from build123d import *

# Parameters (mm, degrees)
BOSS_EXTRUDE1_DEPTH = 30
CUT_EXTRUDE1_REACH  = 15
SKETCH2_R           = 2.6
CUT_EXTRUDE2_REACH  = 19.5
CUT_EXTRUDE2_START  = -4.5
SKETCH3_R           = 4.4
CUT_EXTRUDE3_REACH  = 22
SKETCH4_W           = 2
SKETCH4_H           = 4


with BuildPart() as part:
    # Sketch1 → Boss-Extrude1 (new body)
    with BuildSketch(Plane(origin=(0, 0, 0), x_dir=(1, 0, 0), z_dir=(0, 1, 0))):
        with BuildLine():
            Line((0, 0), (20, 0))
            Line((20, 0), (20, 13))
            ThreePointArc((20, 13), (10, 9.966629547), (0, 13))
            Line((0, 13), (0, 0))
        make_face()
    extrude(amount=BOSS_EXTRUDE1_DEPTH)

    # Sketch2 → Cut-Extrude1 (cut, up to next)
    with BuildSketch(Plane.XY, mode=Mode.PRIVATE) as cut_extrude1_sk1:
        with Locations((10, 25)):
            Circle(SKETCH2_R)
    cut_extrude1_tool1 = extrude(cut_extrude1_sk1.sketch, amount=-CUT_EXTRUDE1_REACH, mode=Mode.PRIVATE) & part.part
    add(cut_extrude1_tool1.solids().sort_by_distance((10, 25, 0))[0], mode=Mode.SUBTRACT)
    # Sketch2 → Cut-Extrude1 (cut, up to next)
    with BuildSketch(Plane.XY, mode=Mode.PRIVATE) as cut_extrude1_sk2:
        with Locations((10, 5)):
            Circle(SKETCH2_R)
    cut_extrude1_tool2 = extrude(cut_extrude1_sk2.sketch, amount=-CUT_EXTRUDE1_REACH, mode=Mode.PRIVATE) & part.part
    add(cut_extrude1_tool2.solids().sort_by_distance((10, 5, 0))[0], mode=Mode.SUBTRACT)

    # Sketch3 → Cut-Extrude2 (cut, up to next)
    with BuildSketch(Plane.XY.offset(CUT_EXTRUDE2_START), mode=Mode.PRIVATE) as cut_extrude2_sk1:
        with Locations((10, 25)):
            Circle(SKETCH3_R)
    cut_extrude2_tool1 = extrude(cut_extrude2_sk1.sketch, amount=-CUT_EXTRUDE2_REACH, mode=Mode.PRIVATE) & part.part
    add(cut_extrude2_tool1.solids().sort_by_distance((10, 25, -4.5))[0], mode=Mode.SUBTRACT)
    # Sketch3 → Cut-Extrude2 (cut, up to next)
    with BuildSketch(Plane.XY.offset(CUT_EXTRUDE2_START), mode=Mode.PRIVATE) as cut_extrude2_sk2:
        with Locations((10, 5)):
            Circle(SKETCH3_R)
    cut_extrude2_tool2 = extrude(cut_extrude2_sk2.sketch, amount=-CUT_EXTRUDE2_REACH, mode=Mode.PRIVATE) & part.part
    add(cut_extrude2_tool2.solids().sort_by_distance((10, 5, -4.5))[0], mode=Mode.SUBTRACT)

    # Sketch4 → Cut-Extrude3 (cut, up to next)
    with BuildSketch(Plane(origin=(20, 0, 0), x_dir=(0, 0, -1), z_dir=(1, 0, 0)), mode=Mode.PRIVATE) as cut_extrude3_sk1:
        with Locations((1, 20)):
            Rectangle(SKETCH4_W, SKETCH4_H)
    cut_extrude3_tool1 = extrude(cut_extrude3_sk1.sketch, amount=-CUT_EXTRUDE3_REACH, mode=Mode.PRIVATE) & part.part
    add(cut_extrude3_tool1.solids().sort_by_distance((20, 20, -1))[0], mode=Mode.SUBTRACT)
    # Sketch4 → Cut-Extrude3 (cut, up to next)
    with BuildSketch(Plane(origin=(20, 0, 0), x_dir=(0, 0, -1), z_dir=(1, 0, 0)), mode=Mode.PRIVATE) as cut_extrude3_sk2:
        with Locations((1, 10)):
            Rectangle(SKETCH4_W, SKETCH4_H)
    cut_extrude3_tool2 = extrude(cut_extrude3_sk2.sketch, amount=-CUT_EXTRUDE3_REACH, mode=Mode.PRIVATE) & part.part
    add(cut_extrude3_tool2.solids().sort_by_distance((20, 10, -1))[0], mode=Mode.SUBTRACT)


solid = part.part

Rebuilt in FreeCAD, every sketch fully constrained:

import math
import FreeCAD as App
import Part
import Sketcher
from FreeCAD import Vector


def add_polygon(sketch, points):
    """Adds a closed chain of lines whose ends are joined by coincident constraints."""
    first, n = sketch.GeometryCount, len(points)
    for a, b in zip(points, points[1:] + points[:1]):
        sketch.addGeometry(Part.LineSegment(App.Vector(*a, 0), App.Vector(*b, 0)), False)
    for i in range(n):
        sketch.addConstraint(Sketcher.Constraint("Coincident", first + i, 2, first + (i + 1) % n, 1))

doc = App.newDocument("Part")
body = doc.addObject("PartDesign::Body", "Body")

# Sketch on XZ plane
sketch1 = doc.addObject("Sketcher::SketchObject", "Sketch")
body.addObject(sketch1)
sketch1.AttachmentSupport = (doc.XZ_Plane, [""])
sketch1.MapMode = "FlatFace"
sketch1.addGeometry([
    Part.LineSegment(Vector(0, 0, 0), Vector(20, 0, 0)),
    Part.LineSegment(Vector(20, 0, 0), Vector(20, -13, 0)),
    Part.ArcOfCircle(Part.Circle(Vector(10, -28, 0), Vector(0, 0, 1), 18), math.radians(56), math.radians(124)),
    Part.LineSegment(Vector(0, -13, 0), Vector(0, 0, 0)),
], False)
sketch1.addConstraint([
    Sketcher.Constraint("Coincident", 0, 2, 1, 1),
    Sketcher.Constraint("Coincident", 1, 2, 2, 1),
    Sketcher.Constraint("Coincident", 2, 2, 3, 1),
    Sketcher.Constraint("Coincident", 3, 2, 0, 1),
    Sketcher.Constraint("Horizontal", 0),
    Sketcher.Constraint("Vertical", 1),
    Sketcher.Constraint("Vertical", 3),
    Sketcher.Constraint("Coincident", 3, 2, -1, 1),
    Sketcher.Constraint("Horizontal", 1, 2, 2, 2),
    Sketcher.Constraint("Radius", 2, 18.0),
    Sketcher.Constraint("DistanceX", 0, 1, 0, 2, 20.0),
    Sketcher.Constraint("DistanceY", 1, 2, 1, 1, 13.0),
])
pad1 = doc.addObject("PartDesign::Pad", "Pad")
body.addObject(pad1)
pad1.Profile = sketch1
pad1.Length = 30
pad1.Reversed = True

# Sketch on XY plane
sketch2 = doc.addObject("Sketcher::SketchObject", "Sketch001")
body.addObject(sketch2)
sketch2.AttachmentSupport = (doc.XY_Plane, [""])
sketch2.MapMode = "FlatFace"
sketch2.addGeometry(Part.Circle(Vector(10, 25, 0), Vector(0, 0, 1), 2.6), False)
sketch2.addConstraint([
    Sketcher.Constraint("Diameter", 0, 5.2),
    Sketcher.Constraint("DistanceX", -1, 1, 0, 3, 10.0),
    Sketcher.Constraint("DistanceY", -1, 1, 0, 3, 25.0),
])
pocket1 = doc.addObject("PartDesign::Pocket", "Pocket")
body.addObject(pocket1)
pocket1.Profile = sketch2
pocket1.Type = "UpToFirst"

# Sketch on XY plane
sketch3 = doc.addObject("Sketcher::SketchObject", "Sketch002")
body.addObject(sketch3)
sketch3.AttachmentSupport = (doc.XY_Plane, [""])
sketch3.MapMode = "FlatFace"
sketch3.addGeometry(Part.Circle(Vector(10, 5, 0), Vector(0, 0, 1), 2.6), False)
sketch3.addConstraint([
    Sketcher.Constraint("Diameter", 0, 5.2),
    Sketcher.Constraint("DistanceX", -1, 1, 0, 3, 10.0),
    Sketcher.Constraint("DistanceY", -1, 1, 0, 3, 5.0),
])
pocket2 = doc.addObject("PartDesign::Pocket", "Pocket001")
body.addObject(pocket2)
pocket2.Profile = sketch3
pocket2.Type = "UpToFirst"

# Sketch on XY plane
sketch4 = doc.addObject("Sketcher::SketchObject", "Sketch003")
body.addObject(sketch4)
sketch4.AttachmentSupport = (doc.XY_Plane, [""])
sketch4.MapMode = "FlatFace"
sketch4.AttachmentOffset = App.Placement(Vector(0, 0, -4.5), App.Rotation())
sketch4.addGeometry(Part.Circle(Vector(10, 25, 0), Vector(0, 0, 1), 4.4), False)
sketch4.addConstraint([
    Sketcher.Constraint("Diameter", 0, 8.8),
    Sketcher.Constraint("DistanceX", -1, 1, 0, 3, 10.0),
    Sketcher.Constraint("DistanceY", -1, 1, 0, 3, 25.0),
])
pocket3 = doc.addObject("PartDesign::Pocket", "Pocket002")
body.addObject(pocket3)
pocket3.Profile = sketch4
pocket3.Length = 6.01269

# Sketch on XY plane
sketch5 = doc.addObject("Sketcher::SketchObject", "Sketch004")
body.addObject(sketch5)
sketch5.AttachmentSupport = (doc.XY_Plane, [""])
sketch5.MapMode = "FlatFace"
sketch5.AttachmentOffset = App.Placement(Vector(0, 0, -4.5), App.Rotation())
sketch5.addGeometry(Part.Circle(Vector(10, 5, 0), Vector(0, 0, 1), 4.4), False)
sketch5.addConstraint([
    Sketcher.Constraint("Diameter", 0, 8.8),
    Sketcher.Constraint("DistanceX", -1, 1, 0, 3, 10.0),
    Sketcher.Constraint("DistanceY", -1, 1, 0, 3, 5.0),
])
pocket4 = doc.addObject("PartDesign::Pocket", "Pocket003")
body.addObject(pocket4)
pocket4.Profile = sketch5
pocket4.Length = 6.01269

# Sketch on YZ plane
sketch6 = doc.addObject("Sketcher::SketchObject", "Sketch005")
body.addObject(sketch6)
sketch6.AttachmentSupport = (doc.YZ_Plane, [""])
sketch6.MapMode = "FlatFace"
sketch6.AttachmentOffset = App.Placement(Vector(0, 0, 20), App.Rotation())
add_polygon(sketch6, [(22, 0), (18, 0), (18, -2), (22, -2)])  # lines 0-3
sketch6.addConstraint([
    Sketcher.Constraint("Horizontal", 0),
    Sketcher.Constraint("Vertical", 1),
    Sketcher.Constraint("Horizontal", 2),
    Sketcher.Constraint("Vertical", 3),
    Sketcher.Constraint("PointOnObject", 0, 2, -1),
    Sketcher.Constraint("DistanceX", 0, 2, 0, 1, 4.0),
    Sketcher.Constraint("DistanceY", 1, 2, 1, 1, 2.0),
    Sketcher.Constraint("DistanceX", -1, 1, 0, 2, 18.0),
])
pocket5 = doc.addObject("PartDesign::Pocket", "Pocket004")
body.addObject(pocket5)
pocket5.Profile = sketch6
pocket5.Type = "UpToFirst"

# Sketch on YZ plane
sketch7 = doc.addObject("Sketcher::SketchObject", "Sketch006")
body.addObject(sketch7)
sketch7.AttachmentSupport = (doc.YZ_Plane, [""])
sketch7.MapMode = "FlatFace"
sketch7.AttachmentOffset = App.Placement(Vector(0, 0, 20), App.Rotation())
add_polygon(sketch7, [(12, 0), (8, 0), (8, -2), (12, -2)])  # lines 0-3
sketch7.addConstraint([
    Sketcher.Constraint("Horizontal", 0),
    Sketcher.Constraint("Vertical", 1),
    Sketcher.Constraint("Horizontal", 2),
    Sketcher.Constraint("Vertical", 3),
    Sketcher.Constraint("PointOnObject", 0, 2, -1),
    Sketcher.Constraint("DistanceX", 0, 2, 0, 1, 4.0),
    Sketcher.Constraint("DistanceY", 1, 2, 1, 1, 2.0),
    Sketcher.Constraint("DistanceX", -1, 1, 0, 2, 8.0),
])
pocket6 = doc.addObject("PartDesign::Pocket", "Pocket005")
body.addObject(pocket6)
pocket6.Profile = sketch7
pocket6.Type = "UpToFirst"

doc.recompute()
